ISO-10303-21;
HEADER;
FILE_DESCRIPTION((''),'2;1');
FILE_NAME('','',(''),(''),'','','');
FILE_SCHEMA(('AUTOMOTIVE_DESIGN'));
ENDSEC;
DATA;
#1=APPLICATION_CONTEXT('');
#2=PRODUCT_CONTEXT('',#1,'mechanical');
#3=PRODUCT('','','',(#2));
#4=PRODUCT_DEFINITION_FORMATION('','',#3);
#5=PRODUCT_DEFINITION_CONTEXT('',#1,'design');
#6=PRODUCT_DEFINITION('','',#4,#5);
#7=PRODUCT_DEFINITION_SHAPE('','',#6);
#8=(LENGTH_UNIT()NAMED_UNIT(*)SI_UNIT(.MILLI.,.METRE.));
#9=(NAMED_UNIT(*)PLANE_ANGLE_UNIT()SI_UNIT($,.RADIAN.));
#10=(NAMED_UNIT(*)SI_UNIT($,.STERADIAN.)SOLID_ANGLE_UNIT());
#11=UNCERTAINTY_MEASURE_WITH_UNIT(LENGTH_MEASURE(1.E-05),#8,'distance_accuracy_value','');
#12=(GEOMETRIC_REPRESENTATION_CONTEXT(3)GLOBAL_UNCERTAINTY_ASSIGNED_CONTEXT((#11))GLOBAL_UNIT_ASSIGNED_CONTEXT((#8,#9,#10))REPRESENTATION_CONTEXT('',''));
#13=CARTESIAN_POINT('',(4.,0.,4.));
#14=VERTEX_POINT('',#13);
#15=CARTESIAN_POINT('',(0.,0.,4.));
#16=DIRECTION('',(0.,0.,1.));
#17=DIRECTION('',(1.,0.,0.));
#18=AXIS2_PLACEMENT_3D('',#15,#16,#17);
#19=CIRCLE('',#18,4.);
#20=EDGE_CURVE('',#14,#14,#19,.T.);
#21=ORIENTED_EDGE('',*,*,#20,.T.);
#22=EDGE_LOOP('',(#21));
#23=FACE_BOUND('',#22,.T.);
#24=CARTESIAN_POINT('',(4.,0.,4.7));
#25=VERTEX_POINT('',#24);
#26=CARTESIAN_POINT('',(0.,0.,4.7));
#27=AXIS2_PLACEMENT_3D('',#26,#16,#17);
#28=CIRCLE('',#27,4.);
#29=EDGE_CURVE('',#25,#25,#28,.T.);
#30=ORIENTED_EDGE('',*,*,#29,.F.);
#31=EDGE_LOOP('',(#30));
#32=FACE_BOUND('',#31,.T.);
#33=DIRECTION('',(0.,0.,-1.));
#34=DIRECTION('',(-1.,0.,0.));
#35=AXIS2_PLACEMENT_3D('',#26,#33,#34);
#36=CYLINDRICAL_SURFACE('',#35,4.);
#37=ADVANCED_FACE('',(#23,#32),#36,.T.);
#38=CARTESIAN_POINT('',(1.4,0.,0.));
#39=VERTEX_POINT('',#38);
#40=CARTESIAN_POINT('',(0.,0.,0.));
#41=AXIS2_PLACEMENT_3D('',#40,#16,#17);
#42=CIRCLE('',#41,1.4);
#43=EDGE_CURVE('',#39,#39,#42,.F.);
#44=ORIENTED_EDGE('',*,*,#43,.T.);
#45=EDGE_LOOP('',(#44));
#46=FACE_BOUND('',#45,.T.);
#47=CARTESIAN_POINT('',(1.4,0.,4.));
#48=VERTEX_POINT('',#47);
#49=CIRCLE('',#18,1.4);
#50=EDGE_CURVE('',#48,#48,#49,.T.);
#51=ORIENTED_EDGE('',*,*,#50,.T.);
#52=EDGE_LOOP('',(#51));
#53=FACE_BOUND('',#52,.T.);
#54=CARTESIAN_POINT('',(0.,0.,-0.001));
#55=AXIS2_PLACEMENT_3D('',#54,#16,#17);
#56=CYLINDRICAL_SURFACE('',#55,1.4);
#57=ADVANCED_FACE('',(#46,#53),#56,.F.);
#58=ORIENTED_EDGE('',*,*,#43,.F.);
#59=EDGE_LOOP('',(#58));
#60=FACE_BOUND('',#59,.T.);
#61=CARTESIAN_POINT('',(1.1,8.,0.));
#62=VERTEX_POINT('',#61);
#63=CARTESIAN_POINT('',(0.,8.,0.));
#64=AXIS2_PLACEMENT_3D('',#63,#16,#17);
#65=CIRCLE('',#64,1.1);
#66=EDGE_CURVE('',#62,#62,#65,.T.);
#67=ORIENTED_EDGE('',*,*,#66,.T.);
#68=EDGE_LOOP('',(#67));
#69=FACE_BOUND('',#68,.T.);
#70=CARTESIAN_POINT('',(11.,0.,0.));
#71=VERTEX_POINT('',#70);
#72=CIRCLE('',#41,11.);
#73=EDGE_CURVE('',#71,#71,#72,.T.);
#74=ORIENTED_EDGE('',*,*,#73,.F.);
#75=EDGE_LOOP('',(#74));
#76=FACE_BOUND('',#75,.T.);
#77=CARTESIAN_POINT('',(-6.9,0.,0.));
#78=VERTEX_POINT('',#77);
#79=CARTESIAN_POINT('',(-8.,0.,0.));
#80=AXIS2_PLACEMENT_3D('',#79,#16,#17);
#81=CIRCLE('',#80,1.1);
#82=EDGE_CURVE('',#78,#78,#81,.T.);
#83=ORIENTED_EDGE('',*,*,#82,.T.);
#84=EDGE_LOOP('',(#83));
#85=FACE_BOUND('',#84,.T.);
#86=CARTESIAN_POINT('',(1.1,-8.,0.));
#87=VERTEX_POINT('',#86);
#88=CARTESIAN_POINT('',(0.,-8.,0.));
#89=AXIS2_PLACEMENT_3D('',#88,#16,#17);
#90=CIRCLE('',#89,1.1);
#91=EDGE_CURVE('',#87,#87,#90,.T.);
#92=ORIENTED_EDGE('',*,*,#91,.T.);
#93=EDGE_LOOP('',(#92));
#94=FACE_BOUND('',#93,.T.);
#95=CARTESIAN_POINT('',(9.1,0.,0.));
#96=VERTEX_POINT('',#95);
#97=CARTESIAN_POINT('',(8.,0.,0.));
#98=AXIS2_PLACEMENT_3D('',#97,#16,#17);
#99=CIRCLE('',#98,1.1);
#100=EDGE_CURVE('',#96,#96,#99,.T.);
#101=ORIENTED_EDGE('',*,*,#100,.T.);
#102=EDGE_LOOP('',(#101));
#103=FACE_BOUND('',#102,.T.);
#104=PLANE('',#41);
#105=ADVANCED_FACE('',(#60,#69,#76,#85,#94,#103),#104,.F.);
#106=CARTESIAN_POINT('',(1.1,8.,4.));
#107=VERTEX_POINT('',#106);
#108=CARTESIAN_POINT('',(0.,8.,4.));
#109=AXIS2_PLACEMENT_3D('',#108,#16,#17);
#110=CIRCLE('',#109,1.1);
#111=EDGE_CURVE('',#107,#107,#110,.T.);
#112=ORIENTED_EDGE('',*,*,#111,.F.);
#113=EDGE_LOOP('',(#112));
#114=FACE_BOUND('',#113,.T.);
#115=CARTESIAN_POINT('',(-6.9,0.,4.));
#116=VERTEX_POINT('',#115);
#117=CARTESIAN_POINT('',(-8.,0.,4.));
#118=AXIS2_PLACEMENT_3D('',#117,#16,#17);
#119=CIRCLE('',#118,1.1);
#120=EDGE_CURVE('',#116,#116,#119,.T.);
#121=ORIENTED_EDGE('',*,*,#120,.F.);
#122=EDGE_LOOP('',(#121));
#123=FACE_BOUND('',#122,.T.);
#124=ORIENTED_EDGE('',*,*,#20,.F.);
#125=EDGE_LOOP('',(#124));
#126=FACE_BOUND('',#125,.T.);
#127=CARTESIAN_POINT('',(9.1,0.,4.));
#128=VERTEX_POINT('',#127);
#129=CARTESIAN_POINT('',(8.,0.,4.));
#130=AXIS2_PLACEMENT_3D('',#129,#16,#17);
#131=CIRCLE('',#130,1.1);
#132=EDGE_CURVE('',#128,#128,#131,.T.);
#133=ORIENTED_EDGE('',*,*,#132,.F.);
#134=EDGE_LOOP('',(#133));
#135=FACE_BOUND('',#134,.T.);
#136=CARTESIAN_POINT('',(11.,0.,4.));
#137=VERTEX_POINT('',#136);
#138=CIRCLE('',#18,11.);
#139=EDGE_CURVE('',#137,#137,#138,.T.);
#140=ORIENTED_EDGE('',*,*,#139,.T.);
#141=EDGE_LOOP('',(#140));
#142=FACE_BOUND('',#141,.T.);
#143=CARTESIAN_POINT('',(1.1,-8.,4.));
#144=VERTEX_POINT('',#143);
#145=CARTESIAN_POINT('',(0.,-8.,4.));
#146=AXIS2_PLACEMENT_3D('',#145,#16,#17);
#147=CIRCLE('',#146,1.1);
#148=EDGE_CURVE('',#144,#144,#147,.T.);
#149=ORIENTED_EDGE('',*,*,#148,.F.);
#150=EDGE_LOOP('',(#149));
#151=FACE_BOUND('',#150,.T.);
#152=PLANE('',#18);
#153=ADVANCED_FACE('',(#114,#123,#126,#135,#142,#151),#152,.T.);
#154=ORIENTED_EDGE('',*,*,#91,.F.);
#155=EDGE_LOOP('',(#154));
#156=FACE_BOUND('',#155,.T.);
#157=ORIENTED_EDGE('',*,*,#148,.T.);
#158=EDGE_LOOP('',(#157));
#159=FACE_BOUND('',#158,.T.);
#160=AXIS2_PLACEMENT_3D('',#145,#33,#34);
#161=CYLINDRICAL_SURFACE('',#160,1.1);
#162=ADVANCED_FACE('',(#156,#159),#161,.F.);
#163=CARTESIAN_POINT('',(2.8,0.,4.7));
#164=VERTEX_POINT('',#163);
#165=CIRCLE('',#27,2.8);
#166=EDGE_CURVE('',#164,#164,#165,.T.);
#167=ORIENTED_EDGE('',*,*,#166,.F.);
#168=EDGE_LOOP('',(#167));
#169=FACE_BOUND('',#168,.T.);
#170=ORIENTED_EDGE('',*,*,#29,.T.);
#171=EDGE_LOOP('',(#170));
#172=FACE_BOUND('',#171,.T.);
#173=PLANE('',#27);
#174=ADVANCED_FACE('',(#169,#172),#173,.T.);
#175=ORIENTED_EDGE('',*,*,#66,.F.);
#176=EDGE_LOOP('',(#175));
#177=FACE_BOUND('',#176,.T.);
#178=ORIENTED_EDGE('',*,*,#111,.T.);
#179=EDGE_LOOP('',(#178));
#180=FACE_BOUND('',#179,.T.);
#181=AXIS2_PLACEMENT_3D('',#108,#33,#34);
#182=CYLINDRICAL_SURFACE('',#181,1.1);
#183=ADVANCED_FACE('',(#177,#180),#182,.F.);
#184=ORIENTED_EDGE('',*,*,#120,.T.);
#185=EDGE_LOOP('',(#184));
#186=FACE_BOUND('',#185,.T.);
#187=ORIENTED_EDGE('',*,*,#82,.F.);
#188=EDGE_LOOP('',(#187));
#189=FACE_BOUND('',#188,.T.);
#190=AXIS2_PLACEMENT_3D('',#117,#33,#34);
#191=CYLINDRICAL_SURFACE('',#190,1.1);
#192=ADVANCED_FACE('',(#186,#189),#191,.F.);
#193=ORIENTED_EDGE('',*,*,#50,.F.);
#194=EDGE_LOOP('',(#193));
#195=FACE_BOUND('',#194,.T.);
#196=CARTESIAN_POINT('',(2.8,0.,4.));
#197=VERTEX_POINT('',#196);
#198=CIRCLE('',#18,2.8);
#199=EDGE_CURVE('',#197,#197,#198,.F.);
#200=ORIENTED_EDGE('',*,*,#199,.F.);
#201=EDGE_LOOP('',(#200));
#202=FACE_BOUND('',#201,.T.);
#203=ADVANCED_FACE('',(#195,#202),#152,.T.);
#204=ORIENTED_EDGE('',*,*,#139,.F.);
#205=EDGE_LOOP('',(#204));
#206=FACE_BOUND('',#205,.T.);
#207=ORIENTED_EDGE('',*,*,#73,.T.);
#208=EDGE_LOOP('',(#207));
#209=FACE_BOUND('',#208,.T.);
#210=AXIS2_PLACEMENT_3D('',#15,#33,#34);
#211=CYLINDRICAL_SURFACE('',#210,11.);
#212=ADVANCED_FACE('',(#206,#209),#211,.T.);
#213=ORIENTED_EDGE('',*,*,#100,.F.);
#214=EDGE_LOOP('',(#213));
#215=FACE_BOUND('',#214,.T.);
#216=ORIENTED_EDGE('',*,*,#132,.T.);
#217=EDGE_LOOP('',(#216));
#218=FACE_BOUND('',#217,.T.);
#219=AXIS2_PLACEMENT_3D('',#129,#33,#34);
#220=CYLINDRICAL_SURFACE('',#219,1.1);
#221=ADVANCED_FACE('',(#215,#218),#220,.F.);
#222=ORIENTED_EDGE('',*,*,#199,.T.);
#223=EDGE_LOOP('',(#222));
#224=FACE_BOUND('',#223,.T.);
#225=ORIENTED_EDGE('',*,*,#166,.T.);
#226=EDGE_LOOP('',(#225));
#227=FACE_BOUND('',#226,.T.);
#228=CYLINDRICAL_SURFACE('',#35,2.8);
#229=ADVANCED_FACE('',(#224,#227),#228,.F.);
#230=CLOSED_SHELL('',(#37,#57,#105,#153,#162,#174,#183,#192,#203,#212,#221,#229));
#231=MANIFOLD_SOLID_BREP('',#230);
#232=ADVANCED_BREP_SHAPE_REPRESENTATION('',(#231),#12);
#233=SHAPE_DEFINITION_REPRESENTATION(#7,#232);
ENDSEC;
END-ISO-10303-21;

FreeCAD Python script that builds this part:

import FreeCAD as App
import Part
import Sketcher
Q = App.Units.Quantity

doc = App.newDocument("Part")
body = doc.addObject("PartDesign::Body", "Body")

sketch1 = doc.addObject("Sketcher::SketchObject", "Sketch")
body.addObject(sketch1)
sketch1.AttachmentSupport = (doc.XY_Plane, [""])
sketch1.MapMode = "FlatFace"
sketch1.addGeometry([
    Part.Circle(App.Vector(0, 0, 0), App.Vector(0, 0, 1), 11),
    Part.Circle(App.Vector(-8, 0, 0), App.Vector(0, 0, 1), 1.1),
    Part.Circle(App.Vector(0, -8, 0), App.Vector(0, 0, 1), 1.1),
    Part.Circle(App.Vector(8, 0, 0), App.Vector(0, 0, 1), 1.1),
    Part.Circle(App.Vector(0, 8, 0), App.Vector(0, 0, 1), 1.1),
], False)
sketch1.addConstraint([
    Sketcher.Constraint("Coincident", 0, 3, -1, 1),
    Sketcher.Constraint("Equal", 1, 2),
    Sketcher.Constraint("Equal", 2, 3),
    Sketcher.Constraint("Equal", 3, 4),
    Sketcher.Constraint("Symmetric", 1, 3, 3, 3, -1, 1),
    Sketcher.Constraint("Symmetric", 2, 3, 4, 3, -1, 1),
    Sketcher.Constraint("PointOnObject", 1, 3, -1),
    Sketcher.Constraint("PointOnObject", 2, 3, -2),
    Sketcher.Constraint("Diameter", 0, Q("22 mm")),
    Sketcher.Constraint("Diameter", 1, Q("2.2 mm")),
    Sketcher.Constraint("DistanceX", 1, 3, -1, 1, Q("8 mm")),
    Sketcher.Constraint("DistanceY", 2, 3, -1, 1, Q("8 mm")),
])
pad1 = doc.addObject("PartDesign::Pad", "Pad")
body.addObject(pad1)
pad1.Profile = sketch1
pad1.Length = 4

sketch2 = doc.addObject("Sketcher::SketchObject", "Sketch001")
body.addObject(sketch2)
sketch2.AttachmentSupport = (doc.XY_Plane, [""])
sketch2.MapMode = "FlatFace"
sketch2.AttachmentOffset = App.Placement(App.Vector(0, 0, 4), App.Rotation())
sketch2.addGeometry([
    Part.Circle(App.Vector(0, 0, 0), App.Vector(0, 0, 1), 4),
    Part.Circle(App.Vector(0, 0, 0), App.Vector(0, 0, 1), 2.8),
], False)
sketch2.addConstraint([
    Sketcher.Constraint("Coincident", 0, 3, -1, 1),
    Sketcher.Constraint("Coincident", 1, 3, -1, 1),
    Sketcher.Constraint("Diameter", 0, Q("8 mm")),
    Sketcher.Constraint("Diameter", 1, Q("5.6 mm")),
])
pad2 = doc.addObject("PartDesign::Pad", "Pad001")
body.addObject(pad2)
pad2.Profile = sketch2
pad2.Length = 0.7

sketch3 = doc.addObject("Sketcher::SketchObject", "Sketch002")
body.addObject(sketch3)
sketch3.AttachmentSupport = (doc.XY_Plane, [""])
sketch3.MapMode = "FlatFace"
sketch3.AttachmentOffset = App.Placement(App.Vector(0, 0, 4), App.Rotation())
sketch3.addGeometry(Part.Circle(App.Vector(0, 0, 0), App.Vector(0, 0, 1), 1.4), False)
sketch3.addConstraint([
    Sketcher.Constraint("Coincident", 0, 3, -1, 1),
    Sketcher.Constraint("Diameter", 0, Q("2.8 mm")),
])
pocket1 = doc.addObject("PartDesign::Pocket", "Pocket")
body.addObject(pocket1)
pocket1.Profile = sketch3
pocket1.Type = "UpToFirst"

doc.recompute()
